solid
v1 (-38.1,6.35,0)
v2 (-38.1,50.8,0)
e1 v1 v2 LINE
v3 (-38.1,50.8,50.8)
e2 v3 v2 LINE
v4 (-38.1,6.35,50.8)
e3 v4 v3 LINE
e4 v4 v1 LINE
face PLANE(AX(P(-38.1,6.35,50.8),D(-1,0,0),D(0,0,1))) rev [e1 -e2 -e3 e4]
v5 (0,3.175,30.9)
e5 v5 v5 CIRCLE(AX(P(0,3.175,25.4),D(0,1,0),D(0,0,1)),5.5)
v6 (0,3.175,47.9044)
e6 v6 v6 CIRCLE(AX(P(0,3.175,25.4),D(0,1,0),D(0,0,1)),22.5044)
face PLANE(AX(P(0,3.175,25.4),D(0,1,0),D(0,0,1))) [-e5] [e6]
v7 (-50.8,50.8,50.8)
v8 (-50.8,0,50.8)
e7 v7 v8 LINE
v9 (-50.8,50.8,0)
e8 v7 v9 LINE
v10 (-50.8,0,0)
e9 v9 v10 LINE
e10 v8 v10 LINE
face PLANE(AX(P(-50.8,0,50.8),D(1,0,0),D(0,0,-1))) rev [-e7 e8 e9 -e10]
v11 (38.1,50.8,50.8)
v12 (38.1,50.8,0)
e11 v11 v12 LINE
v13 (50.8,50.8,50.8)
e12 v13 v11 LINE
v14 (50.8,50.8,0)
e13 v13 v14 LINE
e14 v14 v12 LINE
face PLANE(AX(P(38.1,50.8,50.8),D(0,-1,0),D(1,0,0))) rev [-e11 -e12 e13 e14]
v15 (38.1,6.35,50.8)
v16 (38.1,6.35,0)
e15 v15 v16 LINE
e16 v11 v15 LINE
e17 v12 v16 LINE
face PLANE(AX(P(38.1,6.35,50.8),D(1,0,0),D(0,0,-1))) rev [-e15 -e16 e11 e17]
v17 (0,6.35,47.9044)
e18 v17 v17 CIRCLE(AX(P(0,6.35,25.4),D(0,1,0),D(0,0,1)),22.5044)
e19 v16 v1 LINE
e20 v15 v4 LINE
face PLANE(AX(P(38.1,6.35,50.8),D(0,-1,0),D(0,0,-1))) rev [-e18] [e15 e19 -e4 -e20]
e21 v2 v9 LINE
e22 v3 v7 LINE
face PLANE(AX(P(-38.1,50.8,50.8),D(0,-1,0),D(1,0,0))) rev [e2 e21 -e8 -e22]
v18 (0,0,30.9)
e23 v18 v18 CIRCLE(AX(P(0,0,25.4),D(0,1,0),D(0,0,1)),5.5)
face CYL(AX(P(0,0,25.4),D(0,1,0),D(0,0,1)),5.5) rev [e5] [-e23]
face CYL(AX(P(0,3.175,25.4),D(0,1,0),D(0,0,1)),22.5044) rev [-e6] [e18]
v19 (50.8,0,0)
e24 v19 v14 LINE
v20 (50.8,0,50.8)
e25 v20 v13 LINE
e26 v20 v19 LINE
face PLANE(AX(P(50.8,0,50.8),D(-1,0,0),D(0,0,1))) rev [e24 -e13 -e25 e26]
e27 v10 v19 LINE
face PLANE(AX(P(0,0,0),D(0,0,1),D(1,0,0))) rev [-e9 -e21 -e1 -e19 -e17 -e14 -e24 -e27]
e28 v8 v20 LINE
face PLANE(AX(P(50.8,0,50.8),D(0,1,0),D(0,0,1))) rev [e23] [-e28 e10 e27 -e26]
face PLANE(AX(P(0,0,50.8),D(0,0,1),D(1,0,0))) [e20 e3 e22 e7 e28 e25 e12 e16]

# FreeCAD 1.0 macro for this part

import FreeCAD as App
import Part
import Sketcher
Q = App.Units.Quantity


def add_polygon(sketch, points):
    """Adds a closed chain of lines whose ends are joined by coincident constraints."""
    first, n = sketch.GeometryCount, len(points)
    for a, b in zip(points, points[1:] + points[:1]):
        sketch.addGeometry(Part.LineSegment(App.Vector(*a, 0), App.Vector(*b, 0)), False)
    for i in range(n):
        sketch.addConstraint(Sketcher.Constraint("Coincident", first + i, 2, first + (i + 1) % n, 1))

doc = App.newDocument("Part")
params = doc.addObject("Spreadsheet::Sheet", "Params")
for row, (alias, value) in enumerate([
    ("sketch1_width", "4 in"),
    ("sketch1_width2", "3 in"),
    ("sketch1_height", "2 in"),
    ("sketch1_height2", "1.75 in"),
    ("pad1_length", "2 in"),
    ("sketch2_diameter", "1.772 in"),
    ("pocket1_length", "0.125 in"),
], start=1):
    params.set(f"A{row}", alias)
    params.set(f"B{row}", "=" + value)
    params.setAlias(f"B{row}", alias)

body = doc.addObject("PartDesign::Body", "Body")

# Sketch on XY plane
sketch1 = doc.addObject("Sketcher::SketchObject", "Sketch")
body.addObject(sketch1)
sketch1.AttachmentSupport = (doc.XY_Plane, [""])
sketch1.MapMode = "FlatFace"
add_polygon(sketch1, [(-51, 0), (51, 0), (51, 51), (38, 51), (38, 6), (-38, 6), (-38, 51), (-51, 51)])  # lines 0-7
sketch1.addConstraint([
    Sketcher.Constraint("Horizontal", 0),
    Sketcher.Constraint("Vertical", 1),
    Sketcher.Constraint("Horizontal", 2),
    Sketcher.Constraint("Vertical", 3),
    Sketcher.Constraint("Horizontal", 4),
    Sketcher.Constraint("Vertical", 5),
    Sketcher.Constraint("Horizontal", 6),
    Sketcher.Constraint("Vertical", 7),
    Sketcher.Constraint("Symmetric", 0, 2, 7, 2, -1, 1),
    Sketcher.Constraint("Symmetric", 2, 2, 5, 2, -2),
    Sketcher.Constraint("DistanceX", 0, 1, 0, 2, Q("4 in")),
    Sketcher.Constraint("DistanceX", 4, 2, 4, 1, Q("3 in")),
    Sketcher.Constraint("DistanceY", 1, 1, 1, 2, Q("2 in")),
    Sketcher.Constraint("DistanceY", 3, 2, 3, 1, Q("1.75 in")),
])
sketch1.setExpression("Constraints[18]", "Params.sketch1_width")
sketch1.setExpression("Constraints[19]", "Params.sketch1_width2")
sketch1.setExpression("Constraints[20]", "Params.sketch1_height")
sketch1.setExpression("Constraints[21]", "Params.sketch1_height2")
pad1 = doc.addObject("PartDesign::Pad", "Pad")
body.addObject(pad1)
pad1.Profile = sketch1
pad1.setExpression("Length", "Params.pad1_length")

# Sketch on XZ plane
sketch2 = doc.addObject("Sketcher::SketchObject", "Sketch001")
body.addObject(sketch2)
sketch2.AttachmentSupport = (doc.XZ_Plane, [""])
sketch2.MapMode = "FlatFace"
sketch2.AttachmentOffset = App.Placement(App.Vector(0, 0, -0.25 * 25.4), App.Rotation())
sketch2.addGeometry(Part.Circle(App.Vector(0, 25, 0), App.Vector(0, 0, 1), 23), False)
sketch2.addConstraint([
    Sketcher.Constraint("PointOnObject", 0, 3, -2),
    Sketcher.Constraint("Diameter", 0, Q("1.772 in")),
    Sketcher.Constraint("DistanceY", -1, 1, 0, 3, Q("1 in")),
])
sketch2.setExpression("Constraints[1]", "Params.sketch2_diameter")
pocket1 = doc.addObject("PartDesign::Pocket", "Pocket")
body.addObject(pocket1)
pocket1.Profile = sketch2
pocket1.setExpression("Length", "Params.pocket1_length")
pocket1.Reversed = True

# Sketch on XZ plane
sketch3 = doc.addObject("Sketcher::SketchObject", "Sketch002")
body.addObject(sketch3)
sketch3.AttachmentSupport = (doc.XZ_Plane, [""])
sketch3.MapMode = "FlatFace"
sketch3.AttachmentOffset = App.Placement(App.Vector(0, 0, -0.125 * 25.4), App.Rotation())
sketch3.addGeometry(Part.Circle(App.Vector(0, 25, 0), App.Vector(0, 0, 1), 6), False)
sketch3.addConstraint([
    Sketcher.Constraint("PointOnObject", 0, 3, -2),
    Sketcher.Constraint("DistanceY", -1, 1, 0, 3, Q("1 in")),
    Sketcher.Constraint("Diameter", 0, 11.0),
])
pocket2 = doc.addObject("PartDesign::Pocket", "Pocket001")
body.addObject(pocket2)
pocket2.Profile = sketch3
pocket2.Type = "ThroughAll"
pocket2.Reversed = True

doc.recompute()
